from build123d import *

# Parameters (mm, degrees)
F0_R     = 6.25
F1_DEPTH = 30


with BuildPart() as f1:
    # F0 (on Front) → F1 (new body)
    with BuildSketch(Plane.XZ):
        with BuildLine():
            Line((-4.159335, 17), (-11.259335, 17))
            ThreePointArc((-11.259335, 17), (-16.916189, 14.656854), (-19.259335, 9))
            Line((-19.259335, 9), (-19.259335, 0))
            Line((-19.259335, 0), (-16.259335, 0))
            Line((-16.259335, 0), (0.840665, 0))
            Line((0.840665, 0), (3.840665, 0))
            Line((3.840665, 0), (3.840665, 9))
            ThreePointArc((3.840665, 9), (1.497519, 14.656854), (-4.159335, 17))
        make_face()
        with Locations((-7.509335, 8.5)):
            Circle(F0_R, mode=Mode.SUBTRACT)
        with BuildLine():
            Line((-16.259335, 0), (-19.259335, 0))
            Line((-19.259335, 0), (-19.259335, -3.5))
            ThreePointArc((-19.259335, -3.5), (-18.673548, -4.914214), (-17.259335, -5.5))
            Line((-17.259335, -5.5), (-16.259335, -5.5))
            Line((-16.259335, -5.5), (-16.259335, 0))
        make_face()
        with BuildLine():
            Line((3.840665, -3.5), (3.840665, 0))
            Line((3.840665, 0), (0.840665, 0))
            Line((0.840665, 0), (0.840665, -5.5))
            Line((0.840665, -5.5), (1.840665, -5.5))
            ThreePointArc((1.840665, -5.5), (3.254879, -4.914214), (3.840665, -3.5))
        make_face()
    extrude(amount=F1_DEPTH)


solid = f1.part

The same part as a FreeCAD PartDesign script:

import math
import FreeCAD as App
import Part
import Sketcher

V = App.Vector

doc = App.newDocument("Part")
body = doc.addObject("PartDesign::Body", "Body")

# Sketch on XZ plane
sketch1 = body.newObject("Sketcher::SketchObject", "Sketch")
sketch1.AttachmentSupport = (doc.getObject("XZ_Plane"), [""])
sketch1.MapMode = "FlatFace"
sketch1.addGeometry([
    Part.ArcOfCircle(Part.Circle(V(-4.159336, 8.999999, 0), V(0, 0, 1), 8.000001), math.radians(0.000006), math.radians(89.999994)),  # 0
    Part.LineSegment(V(-4.159335, 17, 0), V(-11.259335, 17, 0)),  # 1
    Part.ArcOfCircle(Part.Circle(V(-11.259334, 8.999999, 0), V(0, 0, 1), 8.000001), math.radians(90.000006), math.radians(179.999994)),  # 2
    Part.LineSegment(V(-19.259335, 9, 0), V(-19.259335, -3.5, 0)),  # 3
    Part.ArcOfCircle(Part.Circle(V(-17.259335, -3.5, 0), V(0, 0, 1), 2), math.radians(-179.999994), math.radians(-90.000006)),  # 4
    Part.LineSegment(V(-17.259335, -5.5, 0), V(-16.259335, -5.5, 0)),  # 5
    Part.LineSegment(V(-16.259335, -5.5, 0), V(-16.259335, 0, 0)),  # 6
    Part.LineSegment(V(-16.259335, 0, 0), V(0.840665, 0, 0)),  # 7
    Part.LineSegment(V(0.840665, 0, 0), V(0.840665, -5.5, 0)),  # 8
    Part.LineSegment(V(0.840665, -5.5, 0), V(1.840665, -5.5, 0)),  # 9
    Part.ArcOfCircle(Part.Circle(V(1.840666, -3.500001, 0), V(0, 0, 1), 1.999999), math.radians(-90.000043), math.radians(0.000043)),  # 10
    Part.LineSegment(V(3.840665, -3.5, 0), V(3.840665, 9, 0)),  # 11
    Part.Circle(V(-7.509335, 8.5, 0), V(0, 0, 1), 6.25),  # 12
], False)
sketch1.addConstraint([
    Sketcher.Constraint("Tangent", 0, 2, 1, 1),
    Sketcher.Constraint("Tangent", 1, 2, 2, 1),
    Sketcher.Constraint("Tangent", 2, 2, 3, 1),
    Sketcher.Constraint("Tangent", 3, 2, 4, 1),
    Sketcher.Constraint("Tangent", 4, 2, 5, 1),
    Sketcher.Constraint("Coincident", 5, 2, 6, 1),
    Sketcher.Constraint("Coincident", 6, 2, 7, 1),
    Sketcher.Constraint("Coincident", 7, 2, 8, 1),
    Sketcher.Constraint("Coincident", 8, 2, 9, 1),
    Sketcher.Constraint("Tangent", 9, 2, 10, 1),
    Sketcher.Constraint("Tangent", 10, 2, 11, 1),
    Sketcher.Constraint("Tangent", 11, 2, 0, 1),
    Sketcher.Constraint("Horizontal", 1),
    Sketcher.Constraint("Vertical", 3),
    Sketcher.Constraint("Horizontal", 5),
    Sketcher.Constraint("Vertical", 6),
    Sketcher.Constraint("Horizontal", 7),
    Sketcher.Constraint("Vertical", 8),
    Sketcher.Constraint("Horizontal", 9),
    Sketcher.Constraint("Vertical", 11),
    Sketcher.Constraint("Equal", 0, 2),
    Sketcher.Constraint("Equal", 4, 10),
    Sketcher.Constraint("PointOnObject", 6, 2, -1),
    Sketcher.Constraint("Horizontal", 4, 3, 10, 3),
    Sketcher.Constraint("Equal", 5, 9),
    Sketcher.Constraint("Radius", 0, 8.000001),
    Sketcher.Constraint("Radius", 4, 2.0),
    Sketcher.Constraint("Diameter", 12, 12.5),
    Sketcher.Constraint("DistanceX", 5, 1, 5, 2, 1.0),
    Sketcher.Constraint("DistanceX", 1, 2, 1, 1, 7.1),
    Sketcher.Constraint("DistanceY", 3, 2, 3, 1, 12.5),
    Sketcher.Constraint("DistanceY", 6, 1, 6, 2, 5.5),
    Sketcher.Constraint("DistanceY", 10, 3, 12, 3, 12.000001),
    Sketcher.Constraint("DistanceX", 12, 3, 0, 3, 3.349999),
    Sketcher.Constraint("DistanceX", 0, 3, -1, 1, 4.159336),
])
pad1 = body.newObject("PartDesign::Pad", "Pad")
pad1.Profile = sketch1
pad1.Length = 30

doc.recompute()
